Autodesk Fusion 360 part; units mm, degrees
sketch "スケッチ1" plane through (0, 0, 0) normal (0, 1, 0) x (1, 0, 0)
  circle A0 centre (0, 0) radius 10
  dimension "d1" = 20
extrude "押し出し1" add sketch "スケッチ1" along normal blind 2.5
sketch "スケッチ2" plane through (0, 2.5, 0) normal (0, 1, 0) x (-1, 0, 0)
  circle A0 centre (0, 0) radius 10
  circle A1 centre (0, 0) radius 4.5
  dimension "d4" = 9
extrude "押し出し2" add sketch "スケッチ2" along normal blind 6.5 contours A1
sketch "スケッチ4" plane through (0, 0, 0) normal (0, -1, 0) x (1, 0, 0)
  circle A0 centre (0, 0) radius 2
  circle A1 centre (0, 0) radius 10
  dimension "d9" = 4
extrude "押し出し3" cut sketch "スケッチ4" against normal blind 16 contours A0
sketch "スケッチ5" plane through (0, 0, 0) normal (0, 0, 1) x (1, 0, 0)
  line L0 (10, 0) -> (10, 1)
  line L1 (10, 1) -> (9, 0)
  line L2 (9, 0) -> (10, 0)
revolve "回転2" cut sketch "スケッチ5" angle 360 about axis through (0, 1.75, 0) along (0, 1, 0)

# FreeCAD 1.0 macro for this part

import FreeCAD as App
import Part
import Sketcher
Q = App.Units.Quantity

doc = App.newDocument("Part")
params = doc.addObject("Spreadsheet::Sheet", "Params")
for row, (alias, value) in enumerate([
    ("sketch1_diameter", "20 mm"),
    ("pad1_length", "2.5 mm"),
    ("sketch2_diameter", "9 mm"),
    ("pad2_length", "6.5 mm"),
    ("sketch3_diameter", "4 mm"),
    ("pocket1_length", "16 mm"),
    ("sketch4_width", "1 mm"),
    ("groove_angle", "360 deg"),
], start=1):
    params.set(f"A{row}", alias)
    params.set(f"B{row}", "=" + value)
    params.setAlias(f"B{row}", alias)

body = doc.addObject("PartDesign::Body", "Body")

# Sketch on XZ plane
sketch1 = doc.addObject("Sketcher::SketchObject", "Sketch")
body.addObject(sketch1)
sketch1.AttachmentSupport = (doc.XZ_Plane, [""])
sketch1.MapMode = "FlatFace"
sketch1.addGeometry(Part.Circle(App.Vector(0, 0, 0), App.Vector(0, 0, 1), 10), False)
sketch1.addConstraint(Sketcher.Constraint("Coincident", 0, 3, -1, 1))
sketch1.addConstraint(Sketcher.Constraint("Diameter", 0, Q("20 mm")))
sketch1.setExpression("Constraints[1]", "Params.sketch1_diameter")
pad1 = doc.addObject("PartDesign::Pad", "Pad")
body.addObject(pad1)
pad1.Profile = sketch1
pad1.setExpression("Length", "Params.pad1_length")
pad1.Reversed = True

# Sketch on XZ plane
sketch2 = doc.addObject("Sketcher::SketchObject", "Sketch001")
body.addObject(sketch2)
sketch2.AttachmentSupport = (doc.XZ_Plane, [""])
sketch2.MapMode = "FlatFace"
sketch2.AttachmentOffset = App.Placement(App.Vector(0, 0, -2.5), App.Rotation())
sketch2.addGeometry(Part.Circle(App.Vector(0, 0, 0), App.Vector(0, 0, 1), 4.5), False)
sketch2.addConstraint(Sketcher.Constraint("Coincident", 0, 3, -1, 1))
sketch2.addConstraint(Sketcher.Constraint("Diameter", 0, Q("9 mm")))
sketch2.setExpression("Constraints[1]", "Params.sketch2_diameter")
pad2 = doc.addObject("PartDesign::Pad", "Pad001")
body.addObject(pad2)
pad2.Profile = sketch2
pad2.setExpression("Length", "Params.pad2_length")
pad2.Reversed = True

# Sketch on XZ plane
sketch3 = doc.addObject("Sketcher::SketchObject", "Sketch002")
body.addObject(sketch3)
sketch3.AttachmentSupport = (doc.XZ_Plane, [""])
sketch3.MapMode = "FlatFace"
sketch3.addGeometry(Part.Circle(App.Vector(0, 0, 0), App.Vector(0, 0, 1), 2), False)
sketch3.addConstraint(Sketcher.Constraint("Coincident", 0, 3, -1, 1))
sketch3.addConstraint(Sketcher.Constraint("Diameter", 0, Q("4 mm")))
sketch3.setExpression("Constraints[1]", "Params.sketch3_diameter")
pocket1 = doc.addObject("PartDesign::Pocket", "Pocket")
body.addObject(pocket1)
pocket1.Profile = sketch3
pocket1.setExpression("Length", "Params.pocket1_length")

# Sketch on XY plane
sketch4 = doc.addObject("Sketcher::SketchObject", "Sketch003")
body.addObject(sketch4)
sketch4.AttachmentSupport = (doc.XY_Plane, [""])
sketch4.MapMode = "FlatFace"
sketch4.addGeometry(Part.LineSegment(App.Vector(9, 0, 0), App.Vector(10, 0, 0)), False)
sketch4.addGeometry(Part.LineSegment(App.Vector(10, 0, 0), App.Vector(10, 1, 0)), False)
sketch4.addGeometry(Part.LineSegment(App.Vector(10, 1, 0), App.Vector(9, 0, 0)), False)
sketch4.addConstraint(Sketcher.Constraint("Coincident", 0, 2, 1, 1))
sketch4.addConstraint(Sketcher.Constraint("Coincident", 1, 2, 2, 1))
sketch4.addConstraint(Sketcher.Constraint("Coincident", 2, 2, 0, 1))
sketch4.addConstraint(Sketcher.Constraint("Horizontal", 0))
sketch4.addConstraint(Sketcher.Constraint("Vertical", 1))
sketch4.addConstraint(Sketcher.Constraint("PointOnObject", 0, 2, -1))
sketch4.addConstraint(Sketcher.Constraint("Equal", 0, 1))
sketch4.addConstraint(Sketcher.Constraint("DistanceX", 0, 1, 0, 2, Q("1 mm")))
sketch4.addConstraint(Sketcher.Constraint("DistanceX", -1, 1, 0, 2, Q("10 mm")))
sketch4.setExpression("Constraints[7]", "Params.sketch4_width")
groove = doc.addObject("PartDesign::Groove", "Groove")
body.addObject(groove)
groove.Profile = sketch4
groove.ReferenceAxis = (sketch4, ["V_Axis"])
groove.setExpression("Angle", "Params.groove_angle")

doc.recompute()
